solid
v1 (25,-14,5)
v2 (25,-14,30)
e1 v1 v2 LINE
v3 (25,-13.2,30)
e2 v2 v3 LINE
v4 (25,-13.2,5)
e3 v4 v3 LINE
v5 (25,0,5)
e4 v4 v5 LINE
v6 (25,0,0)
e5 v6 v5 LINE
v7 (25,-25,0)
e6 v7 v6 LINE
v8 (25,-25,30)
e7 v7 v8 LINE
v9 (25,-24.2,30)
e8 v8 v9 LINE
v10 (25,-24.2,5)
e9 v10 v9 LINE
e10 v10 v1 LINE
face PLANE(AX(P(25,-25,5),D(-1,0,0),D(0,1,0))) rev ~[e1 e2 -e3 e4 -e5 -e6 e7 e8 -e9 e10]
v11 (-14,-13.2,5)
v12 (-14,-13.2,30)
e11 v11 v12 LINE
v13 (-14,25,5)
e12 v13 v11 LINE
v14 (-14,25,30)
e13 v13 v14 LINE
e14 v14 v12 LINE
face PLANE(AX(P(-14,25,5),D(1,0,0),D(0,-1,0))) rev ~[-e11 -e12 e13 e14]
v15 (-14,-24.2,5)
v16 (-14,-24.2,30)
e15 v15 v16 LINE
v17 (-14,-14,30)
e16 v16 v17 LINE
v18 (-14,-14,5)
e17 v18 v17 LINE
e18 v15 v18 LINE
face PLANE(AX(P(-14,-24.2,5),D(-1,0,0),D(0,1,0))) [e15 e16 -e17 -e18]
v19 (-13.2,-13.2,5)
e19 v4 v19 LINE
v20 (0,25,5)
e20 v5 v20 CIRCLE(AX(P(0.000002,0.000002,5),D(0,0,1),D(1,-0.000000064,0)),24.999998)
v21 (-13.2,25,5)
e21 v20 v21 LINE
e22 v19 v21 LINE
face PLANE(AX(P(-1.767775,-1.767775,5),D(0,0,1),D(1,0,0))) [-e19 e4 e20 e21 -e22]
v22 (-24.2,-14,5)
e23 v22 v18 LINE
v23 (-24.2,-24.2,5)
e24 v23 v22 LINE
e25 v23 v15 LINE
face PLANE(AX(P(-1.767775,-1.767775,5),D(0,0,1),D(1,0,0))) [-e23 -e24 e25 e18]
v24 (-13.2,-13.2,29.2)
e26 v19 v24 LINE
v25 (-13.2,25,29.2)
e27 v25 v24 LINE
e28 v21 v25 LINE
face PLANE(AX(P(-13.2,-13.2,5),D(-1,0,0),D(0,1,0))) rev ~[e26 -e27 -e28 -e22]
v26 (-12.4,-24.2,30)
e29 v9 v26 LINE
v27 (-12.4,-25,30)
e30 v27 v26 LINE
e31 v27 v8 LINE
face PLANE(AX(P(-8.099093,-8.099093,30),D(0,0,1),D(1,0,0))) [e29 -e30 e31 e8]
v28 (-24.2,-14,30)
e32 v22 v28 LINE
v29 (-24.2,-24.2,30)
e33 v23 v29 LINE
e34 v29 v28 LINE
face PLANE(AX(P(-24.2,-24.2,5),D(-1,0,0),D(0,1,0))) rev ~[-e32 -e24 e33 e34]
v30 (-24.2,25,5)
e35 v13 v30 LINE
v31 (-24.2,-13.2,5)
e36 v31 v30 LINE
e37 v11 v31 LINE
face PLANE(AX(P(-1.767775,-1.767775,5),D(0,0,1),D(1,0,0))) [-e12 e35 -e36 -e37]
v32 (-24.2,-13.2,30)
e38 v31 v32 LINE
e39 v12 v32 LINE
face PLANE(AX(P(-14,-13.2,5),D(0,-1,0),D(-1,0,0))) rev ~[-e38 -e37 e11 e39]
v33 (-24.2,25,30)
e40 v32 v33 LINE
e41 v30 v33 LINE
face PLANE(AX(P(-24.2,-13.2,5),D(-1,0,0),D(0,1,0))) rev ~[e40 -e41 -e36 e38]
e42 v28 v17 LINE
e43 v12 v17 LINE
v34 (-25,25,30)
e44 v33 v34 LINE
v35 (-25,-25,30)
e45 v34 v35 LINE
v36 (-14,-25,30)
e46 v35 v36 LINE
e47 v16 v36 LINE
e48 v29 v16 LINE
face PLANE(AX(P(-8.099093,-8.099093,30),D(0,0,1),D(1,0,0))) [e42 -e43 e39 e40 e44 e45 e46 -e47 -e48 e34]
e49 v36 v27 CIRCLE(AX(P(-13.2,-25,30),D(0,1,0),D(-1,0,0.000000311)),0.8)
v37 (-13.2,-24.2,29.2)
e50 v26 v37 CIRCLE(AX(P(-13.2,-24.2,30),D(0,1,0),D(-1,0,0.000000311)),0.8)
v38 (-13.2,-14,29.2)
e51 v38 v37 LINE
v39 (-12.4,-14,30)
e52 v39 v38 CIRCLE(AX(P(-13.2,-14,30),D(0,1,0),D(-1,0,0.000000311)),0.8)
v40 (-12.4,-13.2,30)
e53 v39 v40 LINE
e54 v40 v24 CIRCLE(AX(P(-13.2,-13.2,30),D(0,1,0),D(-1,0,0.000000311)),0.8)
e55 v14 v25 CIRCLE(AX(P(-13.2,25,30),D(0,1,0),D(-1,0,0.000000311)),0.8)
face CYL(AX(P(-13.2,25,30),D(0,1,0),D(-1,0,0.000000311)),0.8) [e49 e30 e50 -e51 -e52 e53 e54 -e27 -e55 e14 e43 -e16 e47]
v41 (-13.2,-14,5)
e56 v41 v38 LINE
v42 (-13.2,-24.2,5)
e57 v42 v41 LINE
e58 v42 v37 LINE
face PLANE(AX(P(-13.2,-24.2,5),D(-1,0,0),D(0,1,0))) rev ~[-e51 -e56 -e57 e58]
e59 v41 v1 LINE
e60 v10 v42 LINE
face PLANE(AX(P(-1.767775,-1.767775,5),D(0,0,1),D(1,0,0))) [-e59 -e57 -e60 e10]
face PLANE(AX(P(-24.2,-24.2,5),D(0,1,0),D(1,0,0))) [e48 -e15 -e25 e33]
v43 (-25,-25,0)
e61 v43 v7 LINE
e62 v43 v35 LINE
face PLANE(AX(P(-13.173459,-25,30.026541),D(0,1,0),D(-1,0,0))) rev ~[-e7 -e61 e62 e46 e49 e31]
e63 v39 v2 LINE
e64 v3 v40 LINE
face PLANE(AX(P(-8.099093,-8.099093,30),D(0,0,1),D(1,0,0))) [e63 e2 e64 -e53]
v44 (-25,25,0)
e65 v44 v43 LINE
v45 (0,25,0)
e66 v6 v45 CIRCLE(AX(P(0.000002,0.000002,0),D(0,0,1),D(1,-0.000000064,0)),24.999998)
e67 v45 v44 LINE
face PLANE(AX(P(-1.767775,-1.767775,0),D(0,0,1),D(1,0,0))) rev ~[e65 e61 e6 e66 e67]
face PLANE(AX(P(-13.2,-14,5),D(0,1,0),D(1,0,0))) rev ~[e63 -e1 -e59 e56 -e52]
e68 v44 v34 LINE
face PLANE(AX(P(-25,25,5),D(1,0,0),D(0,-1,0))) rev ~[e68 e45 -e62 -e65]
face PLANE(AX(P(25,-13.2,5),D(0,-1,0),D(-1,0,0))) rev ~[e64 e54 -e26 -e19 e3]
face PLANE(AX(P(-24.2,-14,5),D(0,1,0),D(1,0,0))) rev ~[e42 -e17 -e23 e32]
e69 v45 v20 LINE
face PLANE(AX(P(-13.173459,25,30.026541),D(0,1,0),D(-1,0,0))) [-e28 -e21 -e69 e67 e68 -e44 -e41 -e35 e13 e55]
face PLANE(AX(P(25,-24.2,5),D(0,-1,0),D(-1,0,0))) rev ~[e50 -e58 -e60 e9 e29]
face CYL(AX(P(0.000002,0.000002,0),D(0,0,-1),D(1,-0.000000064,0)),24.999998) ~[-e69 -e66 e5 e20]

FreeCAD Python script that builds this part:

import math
import FreeCAD as App
import Part
import Sketcher

V = App.Vector

doc = App.newDocument("Part")
body = doc.addObject("PartDesign::Body", "Body")

# Sketch on XY plane
sketch1 = body.newObject("Sketcher::SketchObject", "Sketch")
sketch1.AttachmentSupport = (doc.getObject("XY_Plane"), [""])
sketch1.MapMode = "FlatFace"
sketch1.addGeometry([
    Part.LineSegment(V(0, 25, 0), V(-25, 25, 0)),  # 0
    Part.LineSegment(V(-25, 25, 0), V(-25, -25, 0)),  # 1
    Part.LineSegment(V(-25, -25, 0), V(25, -25, 0)),  # 2
    Part.LineSegment(V(25, -25, 0), V(25, 0, 0)),  # 3
    Part.ArcOfCircle(Part.Circle(V(0.000002, 0.000002, 0), V(0, 0, 1), 24.999998), math.radians(-0.000004), math.radians(90.000004)),  # 4
], False)
sketch1.addConstraint([
    Sketcher.Constraint("Coincident", 0, 2, 1, 1),
    Sketcher.Constraint("Coincident", 1, 2, 2, 1),
    Sketcher.Constraint("Coincident", 2, 2, 3, 1),
    Sketcher.Constraint("Tangent", 3, 2, 4, 1),
    Sketcher.Constraint("Tangent", 4, 2, 0, 1),
    Sketcher.Constraint("Horizontal", 0),
    Sketcher.Constraint("Vertical", 1),
    Sketcher.Constraint("Horizontal", 2),
    Sketcher.Constraint("Vertical", 3),
    Sketcher.Constraint("Coincident", 4, 3, -1, 1),
    Sketcher.Constraint("Symmetric", 0, 2, 2, 2, -1, 1),
    Sketcher.Constraint("Radius", 4, 24.999998),
])
pad1 = body.newObject("PartDesign::Pad", "Pad")
pad1.Profile = sketch1
pad1.Length = 5

# Sketch on XY plane
sketch2 = body.newObject("Sketcher::SketchObject", "Sketch001")
sketch2.AttachmentSupport = (doc.getObject("XY_Plane"), [""])
sketch2.MapMode = "FlatFace"
sketch2.AttachmentOffset = App.Placement(V(0, 0, 5), App.Rotation())
sketch2.addGeometry([
    Part.LineSegment(V(-24.2, -13.2, 0), V(-24.2, 25, 0)),  # 0
    Part.LineSegment(V(-24.2, 25, 0), V(-25, 25, 0)),  # 1
    Part.LineSegment(V(-25, 25, 0), V(-25, -25, 0)),  # 2
    Part.LineSegment(V(-25, -25, 0), V(25, -25, 0)),  # 3
    Part.LineSegment(V(25, -25, 0), V(25, -24.2, 0)),  # 4
    Part.LineSegment(V(25, -24.2, 0), V(-13.2, -24.2, 0)),  # 5
    Part.LineSegment(V(-13.2, -24.2, 0), V(-13.2, -14, 0)),  # 6
    Part.LineSegment(V(-13.2, -14, 0), V(25, -14, 0)),  # 7
    Part.LineSegment(V(25, -14, 0), V(25, -13.2, 0)),  # 8
    Part.LineSegment(V(25, -13.2, 0), V(-13.2, -13.2, 0)),  # 9
    Part.LineSegment(V(-13.2, -13.2, 0), V(-13.2, 25, 0)),  # 10
    Part.LineSegment(V(-13.2, 25, 0), V(-14, 25, 0)),  # 11
    Part.LineSegment(V(-14, 25, 0), V(-14, -13.2, 0)),  # 12
    Part.LineSegment(V(-14, -13.2, 0), V(-24.2, -13.2, 0)),  # 13
    Part.LineSegment(V(-14, -24.2, 0), V(-24.2, -24.2, 0)),  # 14
    Part.LineSegment(V(-24.2, -24.2, 0), V(-24.2, -14, 0)),  # 15
    Part.LineSegment(V(-24.2, -14, 0), V(-14, -14, 0)),  # 16
    Part.LineSegment(V(-14, -14, 0), V(-14, -24.2, 0)),  # 17
], False)
sketch2.addConstraint([
    Sketcher.Constraint("Coincident", 0, 2, 1, 1),
    Sketcher.Constraint("Coincident", 1, 2, 2, 1),
    Sketcher.Constraint("Coincident", 2, 2, 3, 1),
    Sketcher.Constraint("Coincident", 3, 2, 4, 1),
    Sketcher.Constraint("Coincident", 4, 2, 5, 1),
    Sketcher.Constraint("Coincident", 5, 2, 6, 1),
    Sketcher.Constraint("Coincident", 6, 2, 7, 1),
    Sketcher.Constraint("Coincident", 7, 2, 8, 1),
    Sketcher.Constraint("Coincident", 8, 2, 9, 1),
    Sketcher.Constraint("Coincident", 9, 2, 10, 1),
    Sketcher.Constraint("Coincident", 10, 2, 11, 1),
    Sketcher.Constraint("Coincident", 11, 2, 12, 1),
    Sketcher.Constraint("Coincident", 12, 2, 13, 1),
    Sketcher.Constraint("Coincident", 13, 2, 0, 1),
    Sketcher.Constraint("Coincident", 14, 2, 15, 1),
    Sketcher.Constraint("Coincident", 15, 2, 16, 1),
    Sketcher.Constraint("Coincident", 16, 2, 17, 1),
    Sketcher.Constraint("Coincident", 17, 2, 14, 1),
    Sketcher.Constraint("Vertical", 0),
    Sketcher.Constraint("Horizontal", 1),
    Sketcher.Constraint("Vertical", 2),
    Sketcher.Constraint("Horizontal", 3),
    Sketcher.Constraint("Vertical", 4),
    Sketcher.Constraint("Horizontal", 5),
    Sketcher.Constraint("Vertical", 6),
    Sketcher.Constraint("Horizontal", 7),
    Sketcher.Constraint("Vertical", 8),
    Sketcher.Constraint("Horizontal", 9),
    Sketcher.Constraint("Vertical", 10),
    Sketcher.Constraint("Horizontal", 11),
    Sketcher.Constraint("Vertical", 12),
    Sketcher.Constraint("Horizontal", 13),
    Sketcher.Constraint("Horizontal", 14),
    Sketcher.Constraint("Vertical", 15),
    Sketcher.Constraint("Horizontal", 16),
    Sketcher.Constraint("Vertical", 17),
    Sketcher.Constraint("Symmetric", 1, 2, 3, 2, -1, 1),
    Sketcher.Constraint("Horizontal", 1, 2, 10, 2),
    Sketcher.Constraint("Horizontal", 9, 2, 12, 2),
    Sketcher.Constraint("Horizontal", 5, 2, 14, 2),
    Sketcher.Constraint("Horizontal", 7, 2, 15, 2),
    Sketcher.Constraint("Vertical", 4, 2, 7, 2),
    Sketcher.Constraint("Vertical", 6, 2, 9, 2),
    Sketcher.Constraint("Vertical", 13, 2, 14, 2),
    Sketcher.Constraint("Vertical", 12, 2, 16, 2),
    Sketcher.Constraint("Equal", 1, 11),
    Sketcher.Constraint("Equal", 9, 0),
    Sketcher.Constraint("Equal", 3, 2),
    Sketcher.Constraint("Equal", 11, 4),
    Sketcher.Constraint("Equal", 16, 6),
    Sketcher.Constraint("DistanceX", 3, 1, 3, 2, 50.0),
    Sketcher.Constraint("DistanceX", 1, 2, 1, 1, 0.8),
    Sketcher.Constraint("DistanceX", 5, 2, 5, 1, 38.2),
])
pad2 = body.newObject("PartDesign::Pad", "Pad001")
pad2.Profile = sketch2
pad2.Length = 25

# Sketch on XZ plane
sketch3 = body.newObject("Sketcher::SketchObject", "Sketch002")
sketch3.AttachmentSupport = (doc.getObject("XZ_Plane"), [""])
sketch3.MapMode = "FlatFace"
sketch3.AttachmentOffset = App.Placement(V(0, 0, -25), App.Rotation())
sketch3.addGeometry([
    Part.LineSegment(V(-13.2, 30, 0), V(-14, 30, 0)),
    Part.ArcOfCircle(Part.Circle(V(-13.2, 30, 0), V(0, 0, 1), 0.8), math.radians(-89.999982), math.radians(179.999982)),
    Part.LineSegment(V(-13.2, 29.2, 0), V(-13.2, 30, 0)),
], False)
sketch3.addConstraint([
    Sketcher.Constraint("Coincident", 0, 2, 1, 2),
    Sketcher.Constraint("Coincident", 1, 1, 2, 1),
    Sketcher.Constraint("Coincident", 2, 2, 0, 1),
    Sketcher.Constraint("Horizontal", 0),
    Sketcher.Constraint("Vertical", 2),
    Sketcher.Constraint("Coincident", 2, 2, 1, 3),
    Sketcher.Constraint("Radius", 1, 0.8),
    Sketcher.Constraint("DistanceY", -1, 1, 1, 3, 30.0),
    Sketcher.Constraint("DistanceX", 0, 2, -1, 1, 14.0),
])
pad3 = body.newObject("PartDesign::Pad", "Pad002")
pad3.Profile = sketch3
pad3.Length = 50

doc.recompute()
